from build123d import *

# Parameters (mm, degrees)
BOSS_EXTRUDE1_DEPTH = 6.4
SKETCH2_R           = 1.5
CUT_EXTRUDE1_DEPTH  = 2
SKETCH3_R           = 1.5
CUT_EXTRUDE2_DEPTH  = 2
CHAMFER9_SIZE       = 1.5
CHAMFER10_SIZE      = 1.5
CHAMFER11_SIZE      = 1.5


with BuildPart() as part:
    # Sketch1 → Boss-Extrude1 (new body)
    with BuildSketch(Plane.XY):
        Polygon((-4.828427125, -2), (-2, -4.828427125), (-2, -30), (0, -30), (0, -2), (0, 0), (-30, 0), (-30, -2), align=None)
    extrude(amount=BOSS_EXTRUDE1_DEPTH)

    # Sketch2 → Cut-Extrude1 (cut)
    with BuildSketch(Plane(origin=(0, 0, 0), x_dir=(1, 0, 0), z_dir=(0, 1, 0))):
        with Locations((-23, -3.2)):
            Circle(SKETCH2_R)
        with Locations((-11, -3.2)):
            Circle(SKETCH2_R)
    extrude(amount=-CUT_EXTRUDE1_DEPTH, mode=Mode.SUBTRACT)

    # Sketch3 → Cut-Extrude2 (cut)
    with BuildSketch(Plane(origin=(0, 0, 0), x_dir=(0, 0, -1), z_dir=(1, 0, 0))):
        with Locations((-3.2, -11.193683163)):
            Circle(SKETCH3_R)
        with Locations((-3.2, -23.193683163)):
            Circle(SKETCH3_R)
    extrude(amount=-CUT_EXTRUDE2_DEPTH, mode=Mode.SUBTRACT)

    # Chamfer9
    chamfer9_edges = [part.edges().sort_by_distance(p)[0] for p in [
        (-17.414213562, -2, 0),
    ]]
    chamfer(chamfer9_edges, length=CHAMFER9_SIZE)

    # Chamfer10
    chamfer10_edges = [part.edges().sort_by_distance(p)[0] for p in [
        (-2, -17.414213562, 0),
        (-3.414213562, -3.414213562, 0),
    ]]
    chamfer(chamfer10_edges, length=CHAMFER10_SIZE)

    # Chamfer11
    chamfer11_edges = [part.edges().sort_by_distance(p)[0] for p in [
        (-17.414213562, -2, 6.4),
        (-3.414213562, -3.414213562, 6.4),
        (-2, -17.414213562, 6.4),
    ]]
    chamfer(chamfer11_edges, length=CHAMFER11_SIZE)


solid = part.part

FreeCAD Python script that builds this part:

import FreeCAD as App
import Part
import Sketcher
from FreeCAD import Vector


def edges_at(feature, points):
    """Names of the edges that pass closest to the given points."""
    edges = feature.Shape.Edges
    near = lambda p: min(range(len(edges)), key=lambda i: edges[i].distToShape(Part.Vertex(*p))[0])
    return sorted({f"Edge{near(p) + 1}" for p in points})


def add_polygon(sketch, points):
    """Adds a closed chain of lines whose ends are joined by coincident constraints."""
    first, n = sketch.GeometryCount, len(points)
    for a, b in zip(points, points[1:] + points[:1]):
        sketch.addGeometry(Part.LineSegment(App.Vector(*a, 0), App.Vector(*b, 0)), False)
    for i in range(n):
        sketch.addConstraint(Sketcher.Constraint("Coincident", first + i, 2, first + (i + 1) % n, 1))

doc = App.newDocument("Part")
params = doc.addObject("Spreadsheet::Sheet", "Params")
for row, (alias, value) in enumerate([
    ("sketch1_width", "2 mm"),
    ("sketch1_width2", "30 mm"),
    ("sketch1_length", "4 mm"),
    ("pad1_length", "6.4 mm"),
    ("sketch2_diameter", "3 mm"),
    ("pocket1_length", "2 mm"),
    ("sketch3_diameter", "3 mm"),
    ("pocket2_length", "2 mm"),
    ("chamfer_size", "1.5 mm"),
    ("chamfer2_size", "1.5 mm"),
    ("chamfer3_size", "1.5 mm"),
], start=1):
    params.set(f"A{row}", alias)
    params.set(f"B{row}", "=" + value)
    params.setAlias(f"B{row}", alias)

body = doc.addObject("PartDesign::Body", "Body")

# Sketch on XY plane
sketch1 = doc.addObject("Sketcher::SketchObject", "Sketch")
body.addObject(sketch1)
sketch1.AttachmentSupport = (doc.XY_Plane, [""])
sketch1.MapMode = "FlatFace"
add_polygon(sketch1, [(-4.8, -2), (-2, -4.8), (-2, -30), (0, -30), (0, 0), (-30, 0), (-30, -2)])  # lines 0-6
sketch1.addConstraint(Sketcher.Constraint("Vertical", 1))
sketch1.addConstraint(Sketcher.Constraint("Horizontal", 2))
sketch1.addConstraint(Sketcher.Constraint("Vertical", 3))
sketch1.addConstraint(Sketcher.Constraint("Horizontal", 4))
sketch1.addConstraint(Sketcher.Constraint("Vertical", 5))
sketch1.addConstraint(Sketcher.Constraint("Horizontal", 6))
sketch1.addConstraint(Sketcher.Constraint("Coincident", 3, 2, -1, 1))
sketch1.addConstraint(Sketcher.Constraint("Equal", 6, 1))
sketch1.addConstraint(Sketcher.Constraint("Equal", 4, 3))
sketch1.addConstraint(Sketcher.Constraint("Equal", 2, 5))
sketch1.addConstraint(Sketcher.Constraint("DistanceX", 2, 1, 2, 2, 2.0))
sketch1.addConstraint(Sketcher.Constraint("DistanceX", 4, 2, 4, 1, 30.0))
sketch1.addConstraint(Sketcher.Constraint("Distance", 0, 4.0))
sketch1.setExpression("Constraints[17]", "Params.sketch1_width")
sketch1.setExpression("Constraints[18]", "Params.sketch1_width2")
sketch1.setExpression("Constraints[19]", "Params.sketch1_length")
pad1 = doc.addObject("PartDesign::Pad", "Pad")
body.addObject(pad1)
pad1.Profile = sketch1
pad1.setExpression("Length", "Params.pad1_length")

# Sketch on XZ plane
sketch2 = doc.addObject("Sketcher::SketchObject", "Sketch001")
body.addObject(sketch2)
sketch2.AttachmentSupport = (doc.XZ_Plane, [""])
sketch2.MapMode = "FlatFace"
sketch2.addGeometry(Part.Circle(Vector(-23, 3.2, 0), Vector(0, 0, 1), 1.5), False)
sketch2.addGeometry(Part.Circle(Vector(-11, 3.2, 0), Vector(0, 0, 1), 1.5), False)
sketch2.addConstraint(Sketcher.Constraint("Equal", 0, 1))
sketch2.addConstraint(Sketcher.Constraint("Horizontal", 0, 3, 1, 3))
sketch2.addConstraint(Sketcher.Constraint("Diameter", 0, 3.0))
sketch2.addConstraint(Sketcher.Constraint("DistanceX", 0, 3, -1, 1, 23.0))
sketch2.addConstraint(Sketcher.Constraint("DistanceX", 1, 3, -1, 1, 11.0))
sketch2.addConstraint(Sketcher.Constraint("DistanceY", -1, 1, 0, 3, 3.2))
sketch2.setExpression("Constraints[2]", "Params.sketch2_diameter")
pocket1 = doc.addObject("PartDesign::Pocket", "Pocket")
body.addObject(pocket1)
pocket1.Profile = sketch2
pocket1.setExpression("Length", "Params.pocket1_length")
pocket1.Reversed = True

# Sketch on YZ plane
sketch3 = doc.addObject("Sketcher::SketchObject", "Sketch002")
body.addObject(sketch3)
sketch3.AttachmentSupport = (doc.YZ_Plane, [""])
sketch3.MapMode = "FlatFace"
sketch3.addGeometry(Part.Circle(Vector(-11.2, 3.2, 0), Vector(0, 0, 1), 1.5), False)
sketch3.addGeometry(Part.Circle(Vector(-23.2, 3.2, 0), Vector(0, 0, 1), 1.5), False)
sketch3.addConstraint(Sketcher.Constraint("Equal", 0, 1))
sketch3.addConstraint(Sketcher.Constraint("Horizontal", 0, 3, 1, 3))
sketch3.addConstraint(Sketcher.Constraint("Diameter", 0, 3.0))
sketch3.addConstraint(Sketcher.Constraint("DistanceX", 1, 3, 0, 3, 12.0))
sketch3.addConstraint(Sketcher.Constraint("DistanceY", -1, 1, 0, 3, 3.2))
sketch3.addConstraint(Sketcher.Constraint("DistanceX", 0, 3, -1, 1, 11.193683))
sketch3.setExpression("Constraints[2]", "Params.sketch3_diameter")
pocket2 = doc.addObject("PartDesign::Pocket", "Pocket001")
body.addObject(pocket2)
pocket2.Profile = sketch3
pocket2.setExpression("Length", "Params.pocket2_length")
doc.recompute()

chamfer = doc.addObject("PartDesign::Chamfer", "Chamfer")
body.addObject(chamfer)
chamfer.Base = (pocket2, edges_at(pocket2, [(-17.414, -2, 0)]))
chamfer.setExpression("Size", "Params.chamfer_size")
doc.recompute()

chamfer2 = doc.addObject("PartDesign::Chamfer", "Chamfer001")
body.addObject(chamfer2)
chamfer2.Base = (chamfer, edges_at(chamfer, [(-2, -17.414, 0), (-4.164, -2.664, 0)]))
chamfer2.setExpression("Size", "Params.chamfer2_size")
doc.recompute()

chamfer3 = doc.addObject("PartDesign::Chamfer", "Chamfer002")
body.addObject(chamfer3)
chamfer3.Base = (chamfer2, edges_at(chamfer2, [(-17.414, -2, 6.4), (-3.414, -3.414, 6.4), (-2, -17.414, 6.4)]))
chamfer3.setExpression("Size", "Params.chamfer3_size")

doc.recompute()
